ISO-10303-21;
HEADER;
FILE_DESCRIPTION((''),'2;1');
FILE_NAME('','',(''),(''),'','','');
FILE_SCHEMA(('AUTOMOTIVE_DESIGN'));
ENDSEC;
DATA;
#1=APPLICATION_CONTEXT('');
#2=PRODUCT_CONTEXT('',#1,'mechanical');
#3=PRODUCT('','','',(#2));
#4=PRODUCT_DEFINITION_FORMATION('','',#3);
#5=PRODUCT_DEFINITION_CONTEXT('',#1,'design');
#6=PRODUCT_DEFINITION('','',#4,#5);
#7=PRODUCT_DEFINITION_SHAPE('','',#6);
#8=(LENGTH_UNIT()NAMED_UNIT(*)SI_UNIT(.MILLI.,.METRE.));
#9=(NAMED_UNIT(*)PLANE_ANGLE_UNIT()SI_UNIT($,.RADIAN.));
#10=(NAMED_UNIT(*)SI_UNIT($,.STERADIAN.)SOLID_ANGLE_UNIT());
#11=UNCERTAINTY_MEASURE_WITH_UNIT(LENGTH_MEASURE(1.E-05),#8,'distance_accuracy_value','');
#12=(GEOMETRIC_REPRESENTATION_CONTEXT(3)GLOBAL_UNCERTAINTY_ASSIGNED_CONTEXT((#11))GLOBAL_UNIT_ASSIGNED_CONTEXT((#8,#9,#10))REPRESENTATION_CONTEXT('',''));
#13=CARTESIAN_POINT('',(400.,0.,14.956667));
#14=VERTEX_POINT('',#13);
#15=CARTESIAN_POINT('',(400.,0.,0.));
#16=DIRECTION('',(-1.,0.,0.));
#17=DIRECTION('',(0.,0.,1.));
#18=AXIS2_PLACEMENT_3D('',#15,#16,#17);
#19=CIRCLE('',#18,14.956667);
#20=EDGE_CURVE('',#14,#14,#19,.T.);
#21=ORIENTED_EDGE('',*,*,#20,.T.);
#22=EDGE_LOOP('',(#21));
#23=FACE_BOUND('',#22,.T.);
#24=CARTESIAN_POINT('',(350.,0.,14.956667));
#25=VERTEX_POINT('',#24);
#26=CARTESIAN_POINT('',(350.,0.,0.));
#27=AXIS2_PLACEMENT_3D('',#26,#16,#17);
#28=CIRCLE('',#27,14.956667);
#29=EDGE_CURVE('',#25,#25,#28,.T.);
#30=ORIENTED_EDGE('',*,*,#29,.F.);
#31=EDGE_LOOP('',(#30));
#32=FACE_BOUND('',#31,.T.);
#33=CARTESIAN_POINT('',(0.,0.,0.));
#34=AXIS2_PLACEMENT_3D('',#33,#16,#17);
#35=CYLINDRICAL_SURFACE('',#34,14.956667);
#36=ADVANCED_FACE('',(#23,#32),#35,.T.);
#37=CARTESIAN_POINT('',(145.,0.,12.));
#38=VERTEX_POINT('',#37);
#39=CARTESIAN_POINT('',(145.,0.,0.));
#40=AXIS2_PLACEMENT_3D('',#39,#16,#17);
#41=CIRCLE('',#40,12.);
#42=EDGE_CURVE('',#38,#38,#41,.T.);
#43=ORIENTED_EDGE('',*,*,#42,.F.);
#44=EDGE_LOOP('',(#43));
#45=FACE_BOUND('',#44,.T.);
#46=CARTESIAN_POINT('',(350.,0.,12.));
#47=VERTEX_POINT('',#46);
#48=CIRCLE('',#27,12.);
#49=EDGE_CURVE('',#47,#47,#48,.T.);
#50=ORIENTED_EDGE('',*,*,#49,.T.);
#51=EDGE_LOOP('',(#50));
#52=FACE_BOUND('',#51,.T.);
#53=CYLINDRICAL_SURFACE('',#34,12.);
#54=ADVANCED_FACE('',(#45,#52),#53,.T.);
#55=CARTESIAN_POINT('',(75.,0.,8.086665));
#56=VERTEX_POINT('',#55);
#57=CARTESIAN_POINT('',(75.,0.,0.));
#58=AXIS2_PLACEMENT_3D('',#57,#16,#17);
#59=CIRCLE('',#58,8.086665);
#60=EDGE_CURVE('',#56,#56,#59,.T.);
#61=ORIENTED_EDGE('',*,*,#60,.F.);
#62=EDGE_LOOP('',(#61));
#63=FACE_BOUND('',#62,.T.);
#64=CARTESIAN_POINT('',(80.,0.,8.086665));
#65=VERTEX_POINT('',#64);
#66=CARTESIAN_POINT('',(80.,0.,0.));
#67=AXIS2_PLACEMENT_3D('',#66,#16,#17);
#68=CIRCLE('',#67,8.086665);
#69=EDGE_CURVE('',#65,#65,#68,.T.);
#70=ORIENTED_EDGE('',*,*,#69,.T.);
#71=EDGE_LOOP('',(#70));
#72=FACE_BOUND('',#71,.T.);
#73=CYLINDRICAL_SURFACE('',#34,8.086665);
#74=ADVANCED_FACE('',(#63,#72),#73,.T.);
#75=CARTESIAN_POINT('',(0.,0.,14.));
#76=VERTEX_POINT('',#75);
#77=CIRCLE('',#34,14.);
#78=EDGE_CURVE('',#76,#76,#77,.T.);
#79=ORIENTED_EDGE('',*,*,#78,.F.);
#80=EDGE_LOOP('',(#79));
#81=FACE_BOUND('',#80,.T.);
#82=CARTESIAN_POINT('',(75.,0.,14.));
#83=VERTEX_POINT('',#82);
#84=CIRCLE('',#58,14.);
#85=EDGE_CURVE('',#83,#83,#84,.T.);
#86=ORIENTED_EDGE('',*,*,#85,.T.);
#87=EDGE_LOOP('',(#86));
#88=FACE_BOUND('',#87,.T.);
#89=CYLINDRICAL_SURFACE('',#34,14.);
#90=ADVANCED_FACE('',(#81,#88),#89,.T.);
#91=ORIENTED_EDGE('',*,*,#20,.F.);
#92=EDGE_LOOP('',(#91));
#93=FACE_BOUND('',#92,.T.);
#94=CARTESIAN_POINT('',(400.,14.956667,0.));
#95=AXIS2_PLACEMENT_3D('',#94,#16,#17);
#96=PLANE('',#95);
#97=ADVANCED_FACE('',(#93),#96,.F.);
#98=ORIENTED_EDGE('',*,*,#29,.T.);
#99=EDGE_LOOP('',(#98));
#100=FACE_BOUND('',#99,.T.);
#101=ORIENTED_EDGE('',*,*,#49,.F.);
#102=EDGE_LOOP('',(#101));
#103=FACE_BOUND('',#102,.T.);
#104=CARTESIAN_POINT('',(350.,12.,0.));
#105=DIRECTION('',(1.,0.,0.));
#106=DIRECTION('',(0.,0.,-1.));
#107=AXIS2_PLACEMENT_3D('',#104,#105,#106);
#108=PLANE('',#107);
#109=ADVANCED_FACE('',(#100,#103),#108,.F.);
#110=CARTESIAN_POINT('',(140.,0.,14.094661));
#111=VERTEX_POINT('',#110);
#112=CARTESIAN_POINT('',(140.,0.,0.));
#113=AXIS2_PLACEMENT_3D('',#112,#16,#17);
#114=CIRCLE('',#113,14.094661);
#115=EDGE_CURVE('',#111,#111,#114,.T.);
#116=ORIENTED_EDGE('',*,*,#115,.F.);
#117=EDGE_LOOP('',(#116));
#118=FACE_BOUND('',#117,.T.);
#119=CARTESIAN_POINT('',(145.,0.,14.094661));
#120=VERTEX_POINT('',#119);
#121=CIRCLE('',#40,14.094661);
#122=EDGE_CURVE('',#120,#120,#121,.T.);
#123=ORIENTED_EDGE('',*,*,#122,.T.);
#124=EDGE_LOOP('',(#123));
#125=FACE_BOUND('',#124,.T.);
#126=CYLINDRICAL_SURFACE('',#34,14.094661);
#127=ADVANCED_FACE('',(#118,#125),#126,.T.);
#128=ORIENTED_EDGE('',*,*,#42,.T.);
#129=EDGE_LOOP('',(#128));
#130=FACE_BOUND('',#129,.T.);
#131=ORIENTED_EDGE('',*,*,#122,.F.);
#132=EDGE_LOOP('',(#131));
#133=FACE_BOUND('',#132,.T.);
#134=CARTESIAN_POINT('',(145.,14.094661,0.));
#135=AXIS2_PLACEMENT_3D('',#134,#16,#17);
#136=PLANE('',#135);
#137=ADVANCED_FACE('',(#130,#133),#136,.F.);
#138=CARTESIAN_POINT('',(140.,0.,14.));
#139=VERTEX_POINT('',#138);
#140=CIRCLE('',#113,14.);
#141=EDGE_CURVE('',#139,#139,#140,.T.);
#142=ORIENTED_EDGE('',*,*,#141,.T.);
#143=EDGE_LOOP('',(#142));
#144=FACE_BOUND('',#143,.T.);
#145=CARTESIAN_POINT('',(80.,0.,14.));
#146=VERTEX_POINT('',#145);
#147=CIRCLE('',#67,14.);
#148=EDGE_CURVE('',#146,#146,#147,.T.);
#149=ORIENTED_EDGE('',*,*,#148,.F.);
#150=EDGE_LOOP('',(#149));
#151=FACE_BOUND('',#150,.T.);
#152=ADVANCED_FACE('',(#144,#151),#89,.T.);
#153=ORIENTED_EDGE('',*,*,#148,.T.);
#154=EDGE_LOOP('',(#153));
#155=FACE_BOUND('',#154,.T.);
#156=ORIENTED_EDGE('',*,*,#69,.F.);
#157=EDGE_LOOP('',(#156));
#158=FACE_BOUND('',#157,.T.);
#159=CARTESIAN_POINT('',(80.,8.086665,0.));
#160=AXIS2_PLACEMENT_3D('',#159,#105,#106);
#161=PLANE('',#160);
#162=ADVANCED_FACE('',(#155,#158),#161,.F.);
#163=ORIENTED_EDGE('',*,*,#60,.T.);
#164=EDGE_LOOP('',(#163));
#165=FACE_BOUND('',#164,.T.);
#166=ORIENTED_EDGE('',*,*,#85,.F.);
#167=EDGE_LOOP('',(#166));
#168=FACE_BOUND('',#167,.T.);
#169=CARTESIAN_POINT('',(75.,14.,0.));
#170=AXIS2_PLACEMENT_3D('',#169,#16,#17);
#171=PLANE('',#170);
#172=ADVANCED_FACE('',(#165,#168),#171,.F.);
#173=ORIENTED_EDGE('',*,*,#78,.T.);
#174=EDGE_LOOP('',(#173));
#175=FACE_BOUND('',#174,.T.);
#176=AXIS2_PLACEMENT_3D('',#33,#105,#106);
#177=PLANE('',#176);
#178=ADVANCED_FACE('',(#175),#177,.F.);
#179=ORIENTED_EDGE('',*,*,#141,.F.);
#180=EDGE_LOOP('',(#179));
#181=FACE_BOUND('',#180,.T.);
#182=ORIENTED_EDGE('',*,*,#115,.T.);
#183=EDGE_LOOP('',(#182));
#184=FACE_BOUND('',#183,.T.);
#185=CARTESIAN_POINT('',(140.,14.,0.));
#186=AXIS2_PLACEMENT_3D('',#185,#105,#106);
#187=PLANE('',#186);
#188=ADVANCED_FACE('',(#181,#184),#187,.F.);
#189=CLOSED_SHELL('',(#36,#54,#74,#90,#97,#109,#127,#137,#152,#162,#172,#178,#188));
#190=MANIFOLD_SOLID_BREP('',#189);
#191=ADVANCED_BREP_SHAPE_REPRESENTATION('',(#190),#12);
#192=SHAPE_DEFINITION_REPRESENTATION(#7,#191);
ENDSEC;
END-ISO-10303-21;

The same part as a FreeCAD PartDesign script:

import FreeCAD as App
import Part
import Sketcher
from FreeCAD import Vector
Q = App.Units.Quantity

doc = App.newDocument("Part")
body = doc.addObject("PartDesign::Body", "Body")

# Sketch on XY plane
sketch1 = doc.addObject("Sketcher::SketchObject", "Sketch")
body.addObject(sketch1)
sketch1.AttachmentSupport = (doc.XY_Plane, [""])
sketch1.MapMode = "FlatFace"
sketch1.addGeometry([
    Part.LineSegment(Vector(0, 0, 0), Vector(400, 0, 0)),  # 0
    Part.LineSegment(Vector(400, 0, 0), Vector(400, 14.96, 0)),  # 1
    Part.LineSegment(Vector(400, 14.96, 0), Vector(350, 14.96, 0)),  # 2
    Part.LineSegment(Vector(350, 14.96, 0), Vector(350, 12, 0)),  # 3
    Part.LineSegment(Vector(350, 12, 0), Vector(145, 12, 0)),  # 4
    Part.LineSegment(Vector(145, 12, 0), Vector(145, 14.09, 0)),  # 5
    Part.LineSegment(Vector(145, 14.09, 0), Vector(140, 14.09, 0)),  # 6
    Part.LineSegment(Vector(140, 14.09, 0), Vector(140, 14, 0)),  # 7
    Part.LineSegment(Vector(140, 14, 0), Vector(80, 14, 0)),  # 8
    Part.LineSegment(Vector(80, 14, 0), Vector(80, 8.09, 0)),  # 9
    Part.LineSegment(Vector(80, 8.09, 0), Vector(75, 8.09, 0)),  # 10
    Part.LineSegment(Vector(75, 8.09, 0), Vector(75, 14, 0)),  # 11
    Part.LineSegment(Vector(75, 14, 0), Vector(0, 14, 0)),  # 12
    Part.LineSegment(Vector(0, 14, 0), Vector(0, 0, 0)),  # 13
], False)
sketch1.addConstraint([
    Sketcher.Constraint("Coincident", 0, 2, 1, 1),
    Sketcher.Constraint("Coincident", 1, 2, 2, 1),
    Sketcher.Constraint("Coincident", 2, 2, 3, 1),
    Sketcher.Constraint("Coincident", 3, 2, 4, 1),
    Sketcher.Constraint("Coincident", 4, 2, 5, 1),
    Sketcher.Constraint("Coincident", 5, 2, 6, 1),
    Sketcher.Constraint("Coincident", 6, 2, 7, 1),
    Sketcher.Constraint("Coincident", 7, 2, 8, 1),
    Sketcher.Constraint("Coincident", 8, 2, 9, 1),
    Sketcher.Constraint("Coincident", 9, 2, 10, 1),
    Sketcher.Constraint("Coincident", 10, 2, 11, 1),
    Sketcher.Constraint("Coincident", 11, 2, 12, 1),
    Sketcher.Constraint("Coincident", 12, 2, 13, 1),
    Sketcher.Constraint("Coincident", 13, 2, 0, 1),
    Sketcher.Constraint("Horizontal", 0),
    Sketcher.Constraint("Vertical", 1),
    Sketcher.Constraint("Horizontal", 2),
    Sketcher.Constraint("Vertical", 3),
    Sketcher.Constraint("Horizontal", 4),
    Sketcher.Constraint("Vertical", 5),
    Sketcher.Constraint("Horizontal", 6),
    Sketcher.Constraint("Vertical", 7),
    Sketcher.Constraint("Horizontal", 8),
    Sketcher.Constraint("Vertical", 9),
    Sketcher.Constraint("Horizontal", 10),
    Sketcher.Constraint("Vertical", 11),
    Sketcher.Constraint("Horizontal", 12),
    Sketcher.Constraint("Vertical", 13),
    Sketcher.Constraint("Coincident", 13, 2, -1, 1),
    Sketcher.Constraint("Horizontal", 8, 2, 11, 2),
    Sketcher.Constraint("Equal", 6, 10),
    Sketcher.Constraint("DistanceX", 0, 1, 0, 2, Q("400 mm")),
    Sketcher.Constraint("DistanceX", 2, 2, 2, 1, Q("50 mm")),
    Sketcher.Constraint("DistanceX", 4, 2, 4, 1, Q("205 mm")),
    Sketcher.Constraint("DistanceX", 6, 2, 6, 1, Q("5 mm")),
    Sketcher.Constraint("DistanceX", 8, 2, 8, 1, Q("60 mm")),
    Sketcher.Constraint("DistanceY", 13, 2, 13, 1, Q("14 mm")),
    Sketcher.Constraint("DistanceY", -1, 1, 3, 2, Q("12 mm")),
    Sketcher.Constraint("DistanceY", 5, 1, 5, 2, Q("2.094661 mm")),
    Sketcher.Constraint("DistanceY", 1, 1, 1, 2, Q("14.956667 mm")),
    Sketcher.Constraint("DistanceY", 9, 2, 9, 1, Q("5.913335 mm")),
])
revolution = doc.addObject("PartDesign::Revolution", "Revolution")
body.addObject(revolution)
revolution.Profile = sketch1
revolution.ReferenceAxis = (sketch1, ["H_Axis"])
revolution.Angle = 360

doc.recompute()
